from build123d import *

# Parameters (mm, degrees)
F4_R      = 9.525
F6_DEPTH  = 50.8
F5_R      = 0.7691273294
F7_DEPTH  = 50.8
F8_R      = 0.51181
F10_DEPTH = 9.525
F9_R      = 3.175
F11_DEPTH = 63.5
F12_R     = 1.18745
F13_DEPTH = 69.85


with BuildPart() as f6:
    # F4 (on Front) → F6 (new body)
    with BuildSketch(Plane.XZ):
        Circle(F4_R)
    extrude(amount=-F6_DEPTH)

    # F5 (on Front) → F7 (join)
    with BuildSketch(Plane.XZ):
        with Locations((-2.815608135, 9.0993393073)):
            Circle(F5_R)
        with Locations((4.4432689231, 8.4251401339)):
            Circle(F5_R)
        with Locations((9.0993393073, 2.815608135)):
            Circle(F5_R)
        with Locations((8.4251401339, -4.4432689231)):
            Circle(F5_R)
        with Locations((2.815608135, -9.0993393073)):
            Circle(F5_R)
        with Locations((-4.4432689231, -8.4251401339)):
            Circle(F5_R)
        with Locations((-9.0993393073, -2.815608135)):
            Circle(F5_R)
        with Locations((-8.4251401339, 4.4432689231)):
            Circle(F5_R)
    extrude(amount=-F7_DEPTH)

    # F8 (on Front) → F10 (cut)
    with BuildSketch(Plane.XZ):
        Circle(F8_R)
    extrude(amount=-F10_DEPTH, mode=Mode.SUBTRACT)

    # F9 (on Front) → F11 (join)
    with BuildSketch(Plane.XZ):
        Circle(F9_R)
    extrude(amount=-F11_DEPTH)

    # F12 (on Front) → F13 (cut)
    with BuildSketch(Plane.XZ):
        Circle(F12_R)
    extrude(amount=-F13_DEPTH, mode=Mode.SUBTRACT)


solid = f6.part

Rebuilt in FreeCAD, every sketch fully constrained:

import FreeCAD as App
import Part
import Sketcher
from FreeCAD import Vector
Q = App.Units.Quantity

doc = App.newDocument("Part")
body = doc.addObject("PartDesign::Body", "Body")

# Sketch on XZ plane
sketch1 = body.newObject("Sketcher::SketchObject", "Sketch")
sketch1.AttachmentSupport = (doc.getObject("XZ_Plane"), [""])
sketch1.MapMode = "FlatFace"
sketch1.addGeometry(Part.Circle(Vector(0, 0, 0), Vector(0, 0, 1), 9.525), False)
sketch1.addConstraint([
    Sketcher.Constraint("Coincident", 0, 3, -1, 1),
    Sketcher.Constraint("Diameter", 0, Q("0.75 in")),
])
pad1 = body.newObject("PartDesign::Pad", "Pad")
pad1.Profile = sketch1
pad1.Length = Q("2 in")
pad1.Reversed = True

# Sketch on XZ plane
sketch2 = body.newObject("Sketcher::SketchObject", "Sketch001")
sketch2.AttachmentSupport = (doc.getObject("XZ_Plane"), [""])
sketch2.MapMode = "FlatFace"
sketch2.addGeometry([
    Part.Circle(Vector(-2.815608, 9.099339, 0), Vector(0, 0, 1), 0.769127),  # 0
    Part.Circle(Vector(4.443269, 8.42514, 0), Vector(0, 0, 1), 0.769127),  # 1
    Part.Circle(Vector(9.099339, 2.815608, 0), Vector(0, 0, 1), 0.769127),  # 2
    Part.Circle(Vector(8.42514, -4.443269, 0), Vector(0, 0, 1), 0.769127),  # 3
    Part.Circle(Vector(2.815608, -9.099339, 0), Vector(0, 0, 1), 0.769127),  # 4
    Part.Circle(Vector(-4.443269, -8.42514, 0), Vector(0, 0, 1), 0.769127),  # 5
    Part.Circle(Vector(-9.099339, -2.815608, 0), Vector(0, 0, 1), 0.769127),  # 6
    Part.Circle(Vector(-8.42514, 4.443269, 0), Vector(0, 0, 1), 0.769127),  # 7
], False)
sketch2.addConstraint([
    Sketcher.Constraint("Equal", 0, 1),
    Sketcher.Constraint("Equal", 1, 2),
    Sketcher.Constraint("Equal", 2, 3),
    Sketcher.Constraint("Equal", 3, 4),
    Sketcher.Constraint("Equal", 4, 5),
    Sketcher.Constraint("Equal", 5, 6),
    Sketcher.Constraint("Equal", 6, 7),
    Sketcher.Constraint("Symmetric", 0, 3, 4, 3, -1, 1),
    Sketcher.Constraint("Symmetric", 1, 3, 5, 3, -1, 1),
    Sketcher.Constraint("Symmetric", 2, 3, 6, 3, -1, 1),
    Sketcher.Constraint("Symmetric", 3, 3, 7, 3, -1, 1),
    Sketcher.Constraint("Diameter", 0, Q("1.538255 mm")),
    Sketcher.Constraint("DistanceY", 1, 3, 0, 3, Q("0.674199 mm")),
    Sketcher.Constraint("DistanceX", 3, 3, 2, 3, Q("0.674199 mm")),
    Sketcher.Constraint("DistanceX", 0, 3, -1, 1, Q("2.815608 mm")),
    Sketcher.Constraint("DistanceY", -1, 1, 0, 3, Q("9.099339 mm")),
    Sketcher.Constraint("DistanceX", -1, 1, 1, 3, Q("4.443269 mm")),
    Sketcher.Constraint("DistanceX", -1, 1, 2, 3, Q("9.099339 mm")),
    Sketcher.Constraint("DistanceY", -1, 1, 2, 3, Q("2.815608 mm")),
    Sketcher.Constraint("DistanceY", 3, 3, -1, 1, Q("4.443269 mm")),
])
pad2 = body.newObject("PartDesign::Pad", "Pad001")
pad2.Profile = sketch2
pad2.Length = Q("2 in")
pad2.Reversed = True

# Sketch on XZ plane
sketch3 = body.newObject("Sketcher::SketchObject", "Sketch002")
sketch3.AttachmentSupport = (doc.getObject("XZ_Plane"), [""])
sketch3.MapMode = "FlatFace"
sketch3.addGeometry(Part.Circle(Vector(0, 0, 0), Vector(0, 0, 1), 0.51181), False)
sketch3.addConstraint([
    Sketcher.Constraint("Coincident", 0, 3, -1, 1),
    Sketcher.Constraint("Diameter", 0, Q("0.0403 in")),
])
pocket1 = body.newObject("PartDesign::Pocket", "Pocket")
pocket1.Profile = sketch3
pocket1.Length = Q("0.375 in")

# Sketch on XZ plane
sketch4 = body.newObject("Sketcher::SketchObject", "Sketch003")
sketch4.AttachmentSupport = (doc.getObject("XZ_Plane"), [""])
sketch4.MapMode = "FlatFace"
sketch4.addGeometry(Part.Circle(Vector(0, 0, 0), Vector(0, 0, 1), 3.175), False)
sketch4.addConstraint([
    Sketcher.Constraint("Coincident", 0, 3, -1, 1),
    Sketcher.Constraint("Diameter", 0, Q("0.25 in")),
])
pad3 = body.newObject("PartDesign::Pad", "Pad002")
pad3.Profile = sketch4
pad3.Length = Q("2.5 in")
pad3.Reversed = True

# Sketch on XZ plane
sketch5 = body.newObject("Sketcher::SketchObject", "Sketch004")
sketch5.AttachmentSupport = (doc.getObject("XZ_Plane"), [""])
sketch5.MapMode = "FlatFace"
sketch5.addGeometry(Part.Circle(Vector(0, 0, 0), Vector(0, 0, 1), 1.18745), False)
sketch5.addConstraint([
    Sketcher.Constraint("Coincident", 0, 3, -1, 1),
    Sketcher.Constraint("Diameter", 0, Q("0.0935 in")),
])
pocket2 = body.newObject("PartDesign::Pocket", "Pocket001")
pocket2.Profile = sketch5
pocket2.Length = Q("2.75 in")

doc.recompute()
